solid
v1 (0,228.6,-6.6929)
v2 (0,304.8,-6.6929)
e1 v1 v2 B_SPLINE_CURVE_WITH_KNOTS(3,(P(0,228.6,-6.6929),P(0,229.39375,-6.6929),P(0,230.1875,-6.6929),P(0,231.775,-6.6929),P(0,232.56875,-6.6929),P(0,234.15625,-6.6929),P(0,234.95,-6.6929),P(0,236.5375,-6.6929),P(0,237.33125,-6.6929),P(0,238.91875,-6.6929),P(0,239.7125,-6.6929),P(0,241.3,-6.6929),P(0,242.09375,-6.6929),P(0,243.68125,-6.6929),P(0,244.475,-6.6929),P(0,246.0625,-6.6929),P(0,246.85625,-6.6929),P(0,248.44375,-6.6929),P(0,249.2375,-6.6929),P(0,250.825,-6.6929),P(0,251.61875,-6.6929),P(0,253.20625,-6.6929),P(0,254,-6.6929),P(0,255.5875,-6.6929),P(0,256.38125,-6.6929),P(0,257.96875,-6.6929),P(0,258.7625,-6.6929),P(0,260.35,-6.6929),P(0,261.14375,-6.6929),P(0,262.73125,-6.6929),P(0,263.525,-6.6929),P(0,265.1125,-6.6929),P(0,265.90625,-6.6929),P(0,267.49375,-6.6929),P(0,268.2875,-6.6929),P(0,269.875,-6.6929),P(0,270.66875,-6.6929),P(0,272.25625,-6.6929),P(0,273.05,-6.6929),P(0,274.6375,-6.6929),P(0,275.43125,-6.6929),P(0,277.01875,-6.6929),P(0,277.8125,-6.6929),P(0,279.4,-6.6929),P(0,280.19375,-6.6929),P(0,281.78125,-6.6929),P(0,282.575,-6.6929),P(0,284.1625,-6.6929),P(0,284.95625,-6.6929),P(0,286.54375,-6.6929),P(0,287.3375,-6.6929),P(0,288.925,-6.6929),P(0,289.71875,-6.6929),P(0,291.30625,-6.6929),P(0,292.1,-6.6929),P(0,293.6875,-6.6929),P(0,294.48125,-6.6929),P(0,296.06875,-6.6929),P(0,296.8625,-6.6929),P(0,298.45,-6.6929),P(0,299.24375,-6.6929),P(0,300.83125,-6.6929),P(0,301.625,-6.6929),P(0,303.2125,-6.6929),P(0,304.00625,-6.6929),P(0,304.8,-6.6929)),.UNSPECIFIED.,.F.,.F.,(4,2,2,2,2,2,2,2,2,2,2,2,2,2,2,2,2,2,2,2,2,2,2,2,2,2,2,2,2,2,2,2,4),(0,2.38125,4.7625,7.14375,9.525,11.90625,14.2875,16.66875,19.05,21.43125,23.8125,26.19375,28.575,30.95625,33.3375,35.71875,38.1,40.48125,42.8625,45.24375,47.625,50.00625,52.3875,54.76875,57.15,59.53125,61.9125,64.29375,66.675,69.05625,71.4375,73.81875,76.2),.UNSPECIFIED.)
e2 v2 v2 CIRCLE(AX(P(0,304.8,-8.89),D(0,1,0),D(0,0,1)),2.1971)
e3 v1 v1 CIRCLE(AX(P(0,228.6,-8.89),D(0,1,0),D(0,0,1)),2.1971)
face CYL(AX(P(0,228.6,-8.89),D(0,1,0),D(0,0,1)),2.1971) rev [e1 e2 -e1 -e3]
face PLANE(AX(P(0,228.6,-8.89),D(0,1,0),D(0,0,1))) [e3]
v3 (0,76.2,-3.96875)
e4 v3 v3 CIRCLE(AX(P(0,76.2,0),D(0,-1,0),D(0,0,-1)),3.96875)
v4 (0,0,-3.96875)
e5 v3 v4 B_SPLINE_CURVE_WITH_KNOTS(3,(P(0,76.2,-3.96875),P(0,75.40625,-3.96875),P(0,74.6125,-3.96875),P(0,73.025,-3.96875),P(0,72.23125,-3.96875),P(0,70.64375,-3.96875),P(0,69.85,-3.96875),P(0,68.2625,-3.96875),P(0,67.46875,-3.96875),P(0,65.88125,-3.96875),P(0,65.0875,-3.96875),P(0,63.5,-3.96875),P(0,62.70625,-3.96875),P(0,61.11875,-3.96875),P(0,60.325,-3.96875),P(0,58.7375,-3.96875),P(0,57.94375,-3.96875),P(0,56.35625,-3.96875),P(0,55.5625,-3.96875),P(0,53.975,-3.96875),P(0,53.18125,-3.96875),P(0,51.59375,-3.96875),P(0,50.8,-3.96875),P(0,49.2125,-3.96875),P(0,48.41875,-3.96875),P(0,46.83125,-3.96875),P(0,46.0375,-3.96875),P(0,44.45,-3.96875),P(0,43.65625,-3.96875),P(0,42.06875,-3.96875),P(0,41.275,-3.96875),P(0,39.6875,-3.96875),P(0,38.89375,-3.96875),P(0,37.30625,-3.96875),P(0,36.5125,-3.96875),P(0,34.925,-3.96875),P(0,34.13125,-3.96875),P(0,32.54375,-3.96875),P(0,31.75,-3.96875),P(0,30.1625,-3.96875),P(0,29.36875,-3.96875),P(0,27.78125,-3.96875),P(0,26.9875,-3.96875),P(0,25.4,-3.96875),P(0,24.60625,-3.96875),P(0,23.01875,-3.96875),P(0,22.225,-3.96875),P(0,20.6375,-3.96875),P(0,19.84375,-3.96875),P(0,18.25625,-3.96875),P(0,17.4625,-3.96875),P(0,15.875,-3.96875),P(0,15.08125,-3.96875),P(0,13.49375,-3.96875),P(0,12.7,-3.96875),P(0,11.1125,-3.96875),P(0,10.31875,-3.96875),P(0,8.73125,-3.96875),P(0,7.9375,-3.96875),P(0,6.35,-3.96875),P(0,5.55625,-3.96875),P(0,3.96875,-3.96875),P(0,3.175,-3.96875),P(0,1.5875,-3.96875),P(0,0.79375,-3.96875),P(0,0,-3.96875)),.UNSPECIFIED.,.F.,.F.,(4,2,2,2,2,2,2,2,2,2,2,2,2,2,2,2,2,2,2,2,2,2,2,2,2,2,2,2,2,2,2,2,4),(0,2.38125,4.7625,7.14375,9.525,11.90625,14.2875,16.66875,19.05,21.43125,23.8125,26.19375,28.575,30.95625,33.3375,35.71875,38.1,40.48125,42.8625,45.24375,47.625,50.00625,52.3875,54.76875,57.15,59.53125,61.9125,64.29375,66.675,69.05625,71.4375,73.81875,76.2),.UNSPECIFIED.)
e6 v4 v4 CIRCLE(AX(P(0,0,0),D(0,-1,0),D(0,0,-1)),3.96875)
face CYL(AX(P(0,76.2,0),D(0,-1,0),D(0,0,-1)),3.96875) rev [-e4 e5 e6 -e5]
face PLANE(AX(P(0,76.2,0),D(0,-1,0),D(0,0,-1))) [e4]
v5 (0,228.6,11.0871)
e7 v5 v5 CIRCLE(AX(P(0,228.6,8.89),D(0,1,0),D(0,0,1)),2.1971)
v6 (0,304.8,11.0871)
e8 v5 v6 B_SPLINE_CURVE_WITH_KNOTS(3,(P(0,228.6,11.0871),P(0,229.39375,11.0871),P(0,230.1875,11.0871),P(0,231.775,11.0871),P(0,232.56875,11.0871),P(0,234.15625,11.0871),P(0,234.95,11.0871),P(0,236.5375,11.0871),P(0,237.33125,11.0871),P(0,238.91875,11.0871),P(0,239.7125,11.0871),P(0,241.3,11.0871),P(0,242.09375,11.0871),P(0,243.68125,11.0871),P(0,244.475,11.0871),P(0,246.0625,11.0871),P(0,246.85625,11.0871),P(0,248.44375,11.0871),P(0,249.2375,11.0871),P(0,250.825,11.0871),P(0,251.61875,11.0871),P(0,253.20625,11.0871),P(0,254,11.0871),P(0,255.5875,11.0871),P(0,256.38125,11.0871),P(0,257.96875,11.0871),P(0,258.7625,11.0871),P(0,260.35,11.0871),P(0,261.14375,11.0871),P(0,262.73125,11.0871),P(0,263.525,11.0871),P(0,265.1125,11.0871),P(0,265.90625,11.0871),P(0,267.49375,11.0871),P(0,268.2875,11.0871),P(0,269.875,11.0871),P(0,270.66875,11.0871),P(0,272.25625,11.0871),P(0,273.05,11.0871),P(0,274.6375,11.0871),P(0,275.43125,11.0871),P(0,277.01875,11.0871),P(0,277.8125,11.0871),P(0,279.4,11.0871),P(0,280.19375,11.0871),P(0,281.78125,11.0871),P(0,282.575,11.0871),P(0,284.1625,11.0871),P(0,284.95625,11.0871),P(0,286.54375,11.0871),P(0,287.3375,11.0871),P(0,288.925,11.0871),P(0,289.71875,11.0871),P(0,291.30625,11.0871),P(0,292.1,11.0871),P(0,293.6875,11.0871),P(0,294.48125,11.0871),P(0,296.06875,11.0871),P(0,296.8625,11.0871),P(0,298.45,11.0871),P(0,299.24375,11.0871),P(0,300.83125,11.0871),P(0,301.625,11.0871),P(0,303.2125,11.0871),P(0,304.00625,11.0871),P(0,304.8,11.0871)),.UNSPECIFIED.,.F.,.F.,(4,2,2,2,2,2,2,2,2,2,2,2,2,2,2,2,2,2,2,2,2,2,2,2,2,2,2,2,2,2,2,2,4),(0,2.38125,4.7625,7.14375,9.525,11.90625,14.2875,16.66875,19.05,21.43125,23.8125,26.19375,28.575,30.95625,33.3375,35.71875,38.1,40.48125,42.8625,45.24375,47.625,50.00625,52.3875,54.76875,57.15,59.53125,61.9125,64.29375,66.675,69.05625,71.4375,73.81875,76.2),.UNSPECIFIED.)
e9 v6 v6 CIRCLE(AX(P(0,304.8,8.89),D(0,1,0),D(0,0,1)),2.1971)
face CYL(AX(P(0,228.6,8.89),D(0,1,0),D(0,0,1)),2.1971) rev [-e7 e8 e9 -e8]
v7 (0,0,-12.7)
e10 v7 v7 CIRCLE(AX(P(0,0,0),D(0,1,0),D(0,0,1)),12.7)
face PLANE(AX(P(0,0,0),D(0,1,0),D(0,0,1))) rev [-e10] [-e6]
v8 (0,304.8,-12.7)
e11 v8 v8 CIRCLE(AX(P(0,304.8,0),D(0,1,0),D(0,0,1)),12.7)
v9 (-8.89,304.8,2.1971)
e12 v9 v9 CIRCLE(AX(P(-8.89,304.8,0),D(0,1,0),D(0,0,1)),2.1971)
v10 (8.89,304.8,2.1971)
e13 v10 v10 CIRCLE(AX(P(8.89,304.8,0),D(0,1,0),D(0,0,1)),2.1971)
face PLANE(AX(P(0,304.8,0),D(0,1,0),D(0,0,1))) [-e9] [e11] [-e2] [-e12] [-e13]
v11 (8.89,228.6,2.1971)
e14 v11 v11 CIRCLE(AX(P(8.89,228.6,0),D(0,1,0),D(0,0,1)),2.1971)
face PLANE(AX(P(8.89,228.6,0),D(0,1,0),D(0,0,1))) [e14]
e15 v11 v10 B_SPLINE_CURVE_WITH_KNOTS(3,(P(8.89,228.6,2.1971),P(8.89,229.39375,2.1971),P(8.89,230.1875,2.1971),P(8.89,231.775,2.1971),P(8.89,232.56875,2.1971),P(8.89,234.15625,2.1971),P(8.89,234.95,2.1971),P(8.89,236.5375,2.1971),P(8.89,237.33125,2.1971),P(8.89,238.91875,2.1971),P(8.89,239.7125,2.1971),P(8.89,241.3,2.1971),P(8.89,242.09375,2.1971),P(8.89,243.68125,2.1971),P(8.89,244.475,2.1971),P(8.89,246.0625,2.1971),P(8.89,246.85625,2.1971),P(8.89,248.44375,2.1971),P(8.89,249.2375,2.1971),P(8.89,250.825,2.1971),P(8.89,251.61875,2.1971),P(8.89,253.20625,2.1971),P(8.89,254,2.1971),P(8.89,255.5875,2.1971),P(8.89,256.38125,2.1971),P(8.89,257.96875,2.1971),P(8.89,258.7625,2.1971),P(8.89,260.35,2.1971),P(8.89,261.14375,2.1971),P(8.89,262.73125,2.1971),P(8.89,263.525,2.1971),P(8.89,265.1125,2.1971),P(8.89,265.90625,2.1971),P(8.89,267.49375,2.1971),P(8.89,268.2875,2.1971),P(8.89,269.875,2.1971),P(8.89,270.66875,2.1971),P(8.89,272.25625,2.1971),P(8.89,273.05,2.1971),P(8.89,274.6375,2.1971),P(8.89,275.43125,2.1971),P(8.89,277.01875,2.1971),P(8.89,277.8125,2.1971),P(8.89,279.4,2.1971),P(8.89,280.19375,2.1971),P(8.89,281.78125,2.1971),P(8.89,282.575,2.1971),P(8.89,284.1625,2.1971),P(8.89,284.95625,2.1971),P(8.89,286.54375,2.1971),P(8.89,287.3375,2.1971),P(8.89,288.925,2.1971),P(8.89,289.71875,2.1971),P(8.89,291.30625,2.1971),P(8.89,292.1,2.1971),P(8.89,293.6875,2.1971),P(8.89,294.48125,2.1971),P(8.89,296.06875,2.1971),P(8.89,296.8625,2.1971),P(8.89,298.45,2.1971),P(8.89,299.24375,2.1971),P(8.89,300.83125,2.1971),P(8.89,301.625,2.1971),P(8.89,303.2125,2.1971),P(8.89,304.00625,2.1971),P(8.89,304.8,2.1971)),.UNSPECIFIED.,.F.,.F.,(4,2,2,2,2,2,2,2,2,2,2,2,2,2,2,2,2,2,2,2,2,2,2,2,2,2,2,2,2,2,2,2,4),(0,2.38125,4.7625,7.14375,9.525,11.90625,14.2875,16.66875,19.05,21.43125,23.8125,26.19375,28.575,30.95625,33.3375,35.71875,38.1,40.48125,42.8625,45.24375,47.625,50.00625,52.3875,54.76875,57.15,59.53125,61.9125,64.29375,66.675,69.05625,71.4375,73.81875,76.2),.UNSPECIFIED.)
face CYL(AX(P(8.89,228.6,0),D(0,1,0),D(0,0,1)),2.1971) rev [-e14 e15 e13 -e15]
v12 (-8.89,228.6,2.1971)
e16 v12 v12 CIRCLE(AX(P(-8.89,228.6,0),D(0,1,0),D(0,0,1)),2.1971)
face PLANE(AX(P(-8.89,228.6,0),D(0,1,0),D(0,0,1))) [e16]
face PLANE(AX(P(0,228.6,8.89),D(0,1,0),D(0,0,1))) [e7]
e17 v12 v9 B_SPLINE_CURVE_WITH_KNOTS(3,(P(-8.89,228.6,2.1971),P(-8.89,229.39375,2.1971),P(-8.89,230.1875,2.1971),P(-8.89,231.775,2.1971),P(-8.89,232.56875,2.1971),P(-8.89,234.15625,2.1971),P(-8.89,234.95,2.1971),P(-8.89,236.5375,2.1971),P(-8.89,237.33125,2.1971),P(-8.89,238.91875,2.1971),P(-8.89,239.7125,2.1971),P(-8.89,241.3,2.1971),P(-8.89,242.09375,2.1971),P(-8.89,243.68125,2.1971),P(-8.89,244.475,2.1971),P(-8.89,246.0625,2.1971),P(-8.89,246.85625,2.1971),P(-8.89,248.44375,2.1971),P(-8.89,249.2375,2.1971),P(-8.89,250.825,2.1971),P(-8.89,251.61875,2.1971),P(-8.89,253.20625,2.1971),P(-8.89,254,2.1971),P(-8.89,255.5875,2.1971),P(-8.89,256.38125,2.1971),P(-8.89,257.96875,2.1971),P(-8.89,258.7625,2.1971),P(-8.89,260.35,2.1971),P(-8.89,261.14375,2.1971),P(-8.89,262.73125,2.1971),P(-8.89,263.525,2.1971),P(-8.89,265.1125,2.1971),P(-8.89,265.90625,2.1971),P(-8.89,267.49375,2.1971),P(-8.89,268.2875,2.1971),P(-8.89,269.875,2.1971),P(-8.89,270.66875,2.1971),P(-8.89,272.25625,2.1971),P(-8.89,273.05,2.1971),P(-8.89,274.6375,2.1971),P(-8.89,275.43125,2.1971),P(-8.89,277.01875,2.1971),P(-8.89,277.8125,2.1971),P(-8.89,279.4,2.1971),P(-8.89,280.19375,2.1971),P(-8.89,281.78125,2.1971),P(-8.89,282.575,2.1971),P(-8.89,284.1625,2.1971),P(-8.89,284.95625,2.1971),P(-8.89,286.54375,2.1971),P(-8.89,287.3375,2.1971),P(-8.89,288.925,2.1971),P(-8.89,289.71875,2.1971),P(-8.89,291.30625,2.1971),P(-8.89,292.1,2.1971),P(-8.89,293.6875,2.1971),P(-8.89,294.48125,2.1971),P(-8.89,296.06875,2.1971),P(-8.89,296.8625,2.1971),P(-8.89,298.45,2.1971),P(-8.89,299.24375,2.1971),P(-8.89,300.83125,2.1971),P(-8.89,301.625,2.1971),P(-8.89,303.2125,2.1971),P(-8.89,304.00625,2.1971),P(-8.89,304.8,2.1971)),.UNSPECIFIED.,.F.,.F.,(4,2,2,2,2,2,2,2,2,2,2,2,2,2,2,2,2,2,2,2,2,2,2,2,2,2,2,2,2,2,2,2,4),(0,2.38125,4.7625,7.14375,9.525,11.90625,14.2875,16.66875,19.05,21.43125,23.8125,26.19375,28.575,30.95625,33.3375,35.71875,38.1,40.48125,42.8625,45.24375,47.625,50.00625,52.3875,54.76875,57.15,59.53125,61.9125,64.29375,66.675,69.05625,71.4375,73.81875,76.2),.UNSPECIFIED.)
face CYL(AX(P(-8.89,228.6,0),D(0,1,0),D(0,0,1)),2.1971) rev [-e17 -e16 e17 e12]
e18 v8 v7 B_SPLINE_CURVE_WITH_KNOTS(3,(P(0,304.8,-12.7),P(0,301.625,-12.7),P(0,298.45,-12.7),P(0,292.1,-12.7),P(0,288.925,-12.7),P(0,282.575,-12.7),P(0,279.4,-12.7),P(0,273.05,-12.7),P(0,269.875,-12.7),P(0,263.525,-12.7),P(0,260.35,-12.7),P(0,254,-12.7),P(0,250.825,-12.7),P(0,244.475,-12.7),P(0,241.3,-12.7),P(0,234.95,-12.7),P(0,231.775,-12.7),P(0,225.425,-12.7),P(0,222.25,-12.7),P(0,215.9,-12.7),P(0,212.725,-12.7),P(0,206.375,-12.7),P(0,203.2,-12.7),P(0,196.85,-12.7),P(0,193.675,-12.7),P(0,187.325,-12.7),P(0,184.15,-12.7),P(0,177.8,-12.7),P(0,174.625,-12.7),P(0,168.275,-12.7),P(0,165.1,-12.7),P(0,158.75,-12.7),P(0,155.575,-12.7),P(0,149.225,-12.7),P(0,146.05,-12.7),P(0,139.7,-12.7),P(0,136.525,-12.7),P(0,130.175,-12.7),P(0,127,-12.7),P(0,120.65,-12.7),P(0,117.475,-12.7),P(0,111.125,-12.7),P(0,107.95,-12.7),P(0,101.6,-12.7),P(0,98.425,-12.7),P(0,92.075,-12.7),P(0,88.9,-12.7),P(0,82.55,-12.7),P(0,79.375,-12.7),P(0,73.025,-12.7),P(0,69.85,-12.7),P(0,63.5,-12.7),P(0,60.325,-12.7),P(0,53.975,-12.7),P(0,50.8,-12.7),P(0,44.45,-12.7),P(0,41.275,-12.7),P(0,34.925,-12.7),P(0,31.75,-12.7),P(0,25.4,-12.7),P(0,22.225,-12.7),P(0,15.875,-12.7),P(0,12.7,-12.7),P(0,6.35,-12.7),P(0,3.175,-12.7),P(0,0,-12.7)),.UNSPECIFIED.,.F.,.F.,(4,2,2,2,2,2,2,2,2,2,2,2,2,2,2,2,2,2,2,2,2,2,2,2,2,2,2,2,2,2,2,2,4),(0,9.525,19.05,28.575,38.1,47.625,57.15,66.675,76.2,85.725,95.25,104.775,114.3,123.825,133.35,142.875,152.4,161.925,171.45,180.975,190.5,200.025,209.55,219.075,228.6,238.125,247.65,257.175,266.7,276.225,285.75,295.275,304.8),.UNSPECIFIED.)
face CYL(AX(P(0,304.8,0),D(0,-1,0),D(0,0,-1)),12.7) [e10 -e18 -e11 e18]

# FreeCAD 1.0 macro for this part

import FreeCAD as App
import Part
import Sketcher

V = App.Vector
Q = App.Units.Quantity

doc = App.newDocument("Part")
body = doc.addObject("PartDesign::Body", "Body")

# Sketch on XZ plane
sketch1 = body.newObject("Sketcher::SketchObject", "Sketch")
sketch1.AttachmentSupport = (doc.getObject("XZ_Plane"), [""])
sketch1.MapMode = "FlatFace"
sketch1.addGeometry(Part.Circle(V(0, 0, 0), V(0, 0, 1), 13), False)
sketch1.addConstraint(Sketcher.Constraint("Coincident", 0, 3, -1, 1))
sketch1.addConstraint(Sketcher.Constraint("Diameter", 0, Q("1 in")))
pad1 = body.newObject("PartDesign::Pad", "Pad")
pad1.Profile = sketch1
pad1.Length = Q("12 in")
pad1.Reversed = True

# Sketch on XZ plane
sketch2 = body.newObject("Sketcher::SketchObject", "Sketch001")
sketch2.AttachmentSupport = (doc.getObject("XZ_Plane"), [""])
sketch2.MapMode = "FlatFace"
sketch2.addGeometry(Part.Circle(V(0, 0, 0), V(0, 0, 1), 4), False)
sketch2.addConstraint(Sketcher.Constraint("Coincident", 0, 3, -1, 1))
sketch2.addConstraint(Sketcher.Constraint("Diameter", 0, Q("0.3125 in")))
pocket1 = body.newObject("PartDesign::Pocket", "Pocket")
pocket1.Profile = sketch2
pocket1.Length = Q("3 in")

# Sketch on XZ plane
sketch3 = body.newObject("Sketcher::SketchObject", "Sketch002")
sketch3.AttachmentSupport = (doc.getObject("XZ_Plane"), [""])
sketch3.MapMode = "FlatFace"
sketch3.AttachmentOffset = App.Placement(V(0, 0, -12 * 25.4), App.Rotation())
sketch3.addGeometry(Part.Circle(V(0, -8.9, 0), V(0, 0, 1), 2.2), False)
sketch3.addGeometry(Part.Circle(V(8.9, 0, 0), V(0, 0, 1), 2.2), False)
sketch3.addGeometry(Part.Circle(V(0, 8.9, 0), V(0, 0, 1), 2.2), False)
sketch3.addGeometry(Part.Circle(V(-8.9, 0, 0), V(0, 0, 1), 2.2), False)
sketch3.addConstraint(Sketcher.Constraint("Equal", 0, 1))
sketch3.addConstraint(Sketcher.Constraint("Equal", 1, 2))
sketch3.addConstraint(Sketcher.Constraint("Equal", 2, 3))
sketch3.addConstraint(Sketcher.Constraint("Symmetric", 0, 3, 2, 3, -1, 1))
sketch3.addConstraint(Sketcher.Constraint("Symmetric", 1, 3, 3, 3, -1, 1))
sketch3.addConstraint(Sketcher.Constraint("PointOnObject", 0, 3, -2))
sketch3.addConstraint(Sketcher.Constraint("PointOnObject", 1, 3, -1))
sketch3.addConstraint(Sketcher.Constraint("Diameter", 0, Q("0.173 in")))
sketch3.addConstraint(Sketcher.Constraint("DistanceY", 0, 3, 2, 3, Q("0.7 in")))
sketch3.addConstraint(Sketcher.Constraint("DistanceX", 3, 3, 1, 3, Q("0.7 in")))
pocket2 = body.newObject("PartDesign::Pocket", "Pocket001")
pocket2.Profile = sketch3
pocket2.Length = Q("3 in")
pocket2.Reversed = True

doc.recompute()
